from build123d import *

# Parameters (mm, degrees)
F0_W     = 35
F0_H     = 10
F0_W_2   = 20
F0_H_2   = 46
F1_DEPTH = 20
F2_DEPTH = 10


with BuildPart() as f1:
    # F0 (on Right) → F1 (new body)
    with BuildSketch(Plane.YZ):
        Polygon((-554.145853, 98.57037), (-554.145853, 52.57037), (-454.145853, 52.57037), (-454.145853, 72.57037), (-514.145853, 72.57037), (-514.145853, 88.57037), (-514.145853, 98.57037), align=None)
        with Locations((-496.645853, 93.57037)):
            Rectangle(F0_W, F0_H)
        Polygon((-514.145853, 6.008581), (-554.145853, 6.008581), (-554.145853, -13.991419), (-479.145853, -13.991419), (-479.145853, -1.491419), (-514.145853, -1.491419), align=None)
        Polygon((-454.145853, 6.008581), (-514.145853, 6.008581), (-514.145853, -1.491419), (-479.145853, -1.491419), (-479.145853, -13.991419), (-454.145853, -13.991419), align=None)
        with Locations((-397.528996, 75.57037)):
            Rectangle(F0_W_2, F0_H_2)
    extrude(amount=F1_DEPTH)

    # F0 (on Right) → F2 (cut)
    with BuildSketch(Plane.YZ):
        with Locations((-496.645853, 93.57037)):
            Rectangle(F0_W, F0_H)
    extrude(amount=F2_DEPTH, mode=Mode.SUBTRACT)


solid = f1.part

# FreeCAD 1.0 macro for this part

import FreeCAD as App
import Part
import Sketcher
from FreeCAD import Vector
Q = App.Units.Quantity

doc = App.newDocument("Part")
body = doc.addObject("PartDesign::Body", "Body")
body.AllowCompound = True

sketch1 = body.newObject("Sketcher::SketchObject", "Sketch")
sketch1.AttachmentSupport = (doc.getObject("YZ_Plane"), [""])
sketch1.MapMode = "FlatFace"
sketch1.addGeometry([
    Part.LineSegment(Vector(-554, 99, 0), Vector(-554, 53, 0)),
    Part.LineSegment(Vector(-554, 53, 0), Vector(-454, 53, 0)),
    Part.LineSegment(Vector(-454, 53, 0), Vector(-454, 73, 0)),
    Part.LineSegment(Vector(-454, 73, 0), Vector(-514, 73, 0)),
    Part.LineSegment(Vector(-514, 73, 0), Vector(-514, 89, 0)),
    Part.LineSegment(Vector(-514, 89, 0), Vector(-479, 89, 0)),
    Part.LineSegment(Vector(-479, 89, 0), Vector(-479, 99, 0)),
    Part.LineSegment(Vector(-479, 99, 0), Vector(-554, 99, 0)),
    Part.LineSegment(Vector(-554, 6, 0), Vector(-554, -14, 0)),
    Part.LineSegment(Vector(-554, -14, 0), Vector(-454, -14, 0)),
    Part.LineSegment(Vector(-454, -14, 0), Vector(-454, 6, 0)),
    Part.LineSegment(Vector(-454, 6, 0), Vector(-554, 6, 0)),
    Part.LineSegment(Vector(-408, 99, 0), Vector(-408, 53, 0)),
    Part.LineSegment(Vector(-408, 53, 0), Vector(-388, 53, 0)),
    Part.LineSegment(Vector(-388, 53, 0), Vector(-388, 99, 0)),
    Part.LineSegment(Vector(-388, 99, 0), Vector(-408, 99, 0)),
], False)
sketch1.addConstraint([
    Sketcher.Constraint("Coincident", 0, 2, 1, 1),
    Sketcher.Constraint("Coincident", 1, 2, 2, 1),
    Sketcher.Constraint("Coincident", 2, 2, 3, 1),
    Sketcher.Constraint("Coincident", 3, 2, 4, 1),
    Sketcher.Constraint("Coincident", 4, 2, 5, 1),
    Sketcher.Constraint("Coincident", 5, 2, 6, 1),
    Sketcher.Constraint("Coincident", 6, 2, 7, 1),
    Sketcher.Constraint("Coincident", 7, 2, 0, 1),
    Sketcher.Constraint("Coincident", 8, 2, 9, 1),
    Sketcher.Constraint("Coincident", 9, 2, 10, 1),
    Sketcher.Constraint("Coincident", 10, 2, 11, 1),
    Sketcher.Constraint("Coincident", 11, 2, 8, 1),
    Sketcher.Constraint("Coincident", 12, 2, 13, 1),
    Sketcher.Constraint("Coincident", 13, 2, 14, 1),
    Sketcher.Constraint("Coincident", 14, 2, 15, 1),
    Sketcher.Constraint("Coincident", 15, 2, 12, 1),
    Sketcher.Constraint("Vertical", 0),
    Sketcher.Constraint("Horizontal", 1),
    Sketcher.Constraint("Vertical", 2),
    Sketcher.Constraint("Horizontal", 3),
    Sketcher.Constraint("Vertical", 4),
    Sketcher.Constraint("Horizontal", 5),
    Sketcher.Constraint("Vertical", 6),
    Sketcher.Constraint("Horizontal", 7),
    Sketcher.Constraint("Vertical", 8),
    Sketcher.Constraint("Horizontal", 9),
    Sketcher.Constraint("Vertical", 10),
    Sketcher.Constraint("Horizontal", 11),
    Sketcher.Constraint("Vertical", 12),
    Sketcher.Constraint("Horizontal", 13),
    Sketcher.Constraint("Vertical", 14),
    Sketcher.Constraint("Horizontal", 15),
    Sketcher.Constraint("Horizontal", 1, 2, 12, 2),
    Sketcher.Constraint("Horizontal", 7, 2, 14, 2),
    Sketcher.Constraint("Vertical", 7, 2, 8, 2),
    Sketcher.Constraint("Vertical", 2, 2, 9, 2),
    Sketcher.Constraint("Equal", 15, 2),
    Sketcher.Constraint("Equal", 2, 8),
    Sketcher.Constraint("DistanceX", 1, 1, 1, 2, Q("100 mm")),
    Sketcher.Constraint("DistanceX", 3, 2, 3, 1, Q("60 mm")),
    Sketcher.Constraint("DistanceX", 5, 1, 5, 2, Q("35 mm")),
    Sketcher.Constraint("DistanceX", 13, 1, 13, 2, Q("20 mm")),
    Sketcher.Constraint("DistanceY", 0, 2, 0, 1, Q("46 mm")),
    Sketcher.Constraint("DistanceY", 4, 1, 4, 2, Q("16 mm")),
    Sketcher.Constraint("DistanceY", -1, 1, 0, 2, Q("52.57037 mm")),
    Sketcher.Constraint("DistanceY", 8, 2, -1, 1, Q("13.991419 mm")),
    Sketcher.Constraint("DistanceX", 0, 2, -1, 1, Q("554.145853 mm")),
    Sketcher.Constraint("DistanceX", 12, 2, -1, 1, Q("407.528996 mm")),
])
pad1 = body.newObject("PartDesign::Pad", "Pad")
pad1.Profile = sketch1
pad1.Length = 20

sketch2 = body.newObject("Sketcher::SketchObject", "Sketch001")
sketch2.AttachmentSupport = (doc.getObject("YZ_Plane"), [""])
sketch2.MapMode = "FlatFace"
sketch2.addGeometry([
    Part.LineSegment(Vector(-514, 99, 0), Vector(-514, 89, 0)),
    Part.LineSegment(Vector(-514, 89, 0), Vector(-479, 89, 0)),
    Part.LineSegment(Vector(-479, 89, 0), Vector(-479, 99, 0)),
    Part.LineSegment(Vector(-479, 99, 0), Vector(-514, 99, 0)),
], False)
sketch2.addConstraint([
    Sketcher.Constraint("Coincident", 0, 2, 1, 1),
    Sketcher.Constraint("Coincident", 1, 2, 2, 1),
    Sketcher.Constraint("Coincident", 2, 2, 3, 1),
    Sketcher.Constraint("Coincident", 3, 2, 0, 1),
    Sketcher.Constraint("Vertical", 0),
    Sketcher.Constraint("Horizontal", 1),
    Sketcher.Constraint("Vertical", 2),
    Sketcher.Constraint("Horizontal", 3),
    Sketcher.Constraint("DistanceX", 1, 1, 1, 2, Q("35 mm")),
    Sketcher.Constraint("DistanceY", 0, 2, 0, 1, Q("10 mm")),
    Sketcher.Constraint("DistanceY", -1, 1, 0, 2, Q("88.57037 mm")),
    Sketcher.Constraint("DistanceX", 0, 2, -1, 1, Q("514.145853 mm")),
])
pocket1 = body.newObject("PartDesign::Pocket", "Pocket")
pocket1.Profile = sketch2
pocket1.Length = 10
pocket1.Reversed = True

doc.recompute()
